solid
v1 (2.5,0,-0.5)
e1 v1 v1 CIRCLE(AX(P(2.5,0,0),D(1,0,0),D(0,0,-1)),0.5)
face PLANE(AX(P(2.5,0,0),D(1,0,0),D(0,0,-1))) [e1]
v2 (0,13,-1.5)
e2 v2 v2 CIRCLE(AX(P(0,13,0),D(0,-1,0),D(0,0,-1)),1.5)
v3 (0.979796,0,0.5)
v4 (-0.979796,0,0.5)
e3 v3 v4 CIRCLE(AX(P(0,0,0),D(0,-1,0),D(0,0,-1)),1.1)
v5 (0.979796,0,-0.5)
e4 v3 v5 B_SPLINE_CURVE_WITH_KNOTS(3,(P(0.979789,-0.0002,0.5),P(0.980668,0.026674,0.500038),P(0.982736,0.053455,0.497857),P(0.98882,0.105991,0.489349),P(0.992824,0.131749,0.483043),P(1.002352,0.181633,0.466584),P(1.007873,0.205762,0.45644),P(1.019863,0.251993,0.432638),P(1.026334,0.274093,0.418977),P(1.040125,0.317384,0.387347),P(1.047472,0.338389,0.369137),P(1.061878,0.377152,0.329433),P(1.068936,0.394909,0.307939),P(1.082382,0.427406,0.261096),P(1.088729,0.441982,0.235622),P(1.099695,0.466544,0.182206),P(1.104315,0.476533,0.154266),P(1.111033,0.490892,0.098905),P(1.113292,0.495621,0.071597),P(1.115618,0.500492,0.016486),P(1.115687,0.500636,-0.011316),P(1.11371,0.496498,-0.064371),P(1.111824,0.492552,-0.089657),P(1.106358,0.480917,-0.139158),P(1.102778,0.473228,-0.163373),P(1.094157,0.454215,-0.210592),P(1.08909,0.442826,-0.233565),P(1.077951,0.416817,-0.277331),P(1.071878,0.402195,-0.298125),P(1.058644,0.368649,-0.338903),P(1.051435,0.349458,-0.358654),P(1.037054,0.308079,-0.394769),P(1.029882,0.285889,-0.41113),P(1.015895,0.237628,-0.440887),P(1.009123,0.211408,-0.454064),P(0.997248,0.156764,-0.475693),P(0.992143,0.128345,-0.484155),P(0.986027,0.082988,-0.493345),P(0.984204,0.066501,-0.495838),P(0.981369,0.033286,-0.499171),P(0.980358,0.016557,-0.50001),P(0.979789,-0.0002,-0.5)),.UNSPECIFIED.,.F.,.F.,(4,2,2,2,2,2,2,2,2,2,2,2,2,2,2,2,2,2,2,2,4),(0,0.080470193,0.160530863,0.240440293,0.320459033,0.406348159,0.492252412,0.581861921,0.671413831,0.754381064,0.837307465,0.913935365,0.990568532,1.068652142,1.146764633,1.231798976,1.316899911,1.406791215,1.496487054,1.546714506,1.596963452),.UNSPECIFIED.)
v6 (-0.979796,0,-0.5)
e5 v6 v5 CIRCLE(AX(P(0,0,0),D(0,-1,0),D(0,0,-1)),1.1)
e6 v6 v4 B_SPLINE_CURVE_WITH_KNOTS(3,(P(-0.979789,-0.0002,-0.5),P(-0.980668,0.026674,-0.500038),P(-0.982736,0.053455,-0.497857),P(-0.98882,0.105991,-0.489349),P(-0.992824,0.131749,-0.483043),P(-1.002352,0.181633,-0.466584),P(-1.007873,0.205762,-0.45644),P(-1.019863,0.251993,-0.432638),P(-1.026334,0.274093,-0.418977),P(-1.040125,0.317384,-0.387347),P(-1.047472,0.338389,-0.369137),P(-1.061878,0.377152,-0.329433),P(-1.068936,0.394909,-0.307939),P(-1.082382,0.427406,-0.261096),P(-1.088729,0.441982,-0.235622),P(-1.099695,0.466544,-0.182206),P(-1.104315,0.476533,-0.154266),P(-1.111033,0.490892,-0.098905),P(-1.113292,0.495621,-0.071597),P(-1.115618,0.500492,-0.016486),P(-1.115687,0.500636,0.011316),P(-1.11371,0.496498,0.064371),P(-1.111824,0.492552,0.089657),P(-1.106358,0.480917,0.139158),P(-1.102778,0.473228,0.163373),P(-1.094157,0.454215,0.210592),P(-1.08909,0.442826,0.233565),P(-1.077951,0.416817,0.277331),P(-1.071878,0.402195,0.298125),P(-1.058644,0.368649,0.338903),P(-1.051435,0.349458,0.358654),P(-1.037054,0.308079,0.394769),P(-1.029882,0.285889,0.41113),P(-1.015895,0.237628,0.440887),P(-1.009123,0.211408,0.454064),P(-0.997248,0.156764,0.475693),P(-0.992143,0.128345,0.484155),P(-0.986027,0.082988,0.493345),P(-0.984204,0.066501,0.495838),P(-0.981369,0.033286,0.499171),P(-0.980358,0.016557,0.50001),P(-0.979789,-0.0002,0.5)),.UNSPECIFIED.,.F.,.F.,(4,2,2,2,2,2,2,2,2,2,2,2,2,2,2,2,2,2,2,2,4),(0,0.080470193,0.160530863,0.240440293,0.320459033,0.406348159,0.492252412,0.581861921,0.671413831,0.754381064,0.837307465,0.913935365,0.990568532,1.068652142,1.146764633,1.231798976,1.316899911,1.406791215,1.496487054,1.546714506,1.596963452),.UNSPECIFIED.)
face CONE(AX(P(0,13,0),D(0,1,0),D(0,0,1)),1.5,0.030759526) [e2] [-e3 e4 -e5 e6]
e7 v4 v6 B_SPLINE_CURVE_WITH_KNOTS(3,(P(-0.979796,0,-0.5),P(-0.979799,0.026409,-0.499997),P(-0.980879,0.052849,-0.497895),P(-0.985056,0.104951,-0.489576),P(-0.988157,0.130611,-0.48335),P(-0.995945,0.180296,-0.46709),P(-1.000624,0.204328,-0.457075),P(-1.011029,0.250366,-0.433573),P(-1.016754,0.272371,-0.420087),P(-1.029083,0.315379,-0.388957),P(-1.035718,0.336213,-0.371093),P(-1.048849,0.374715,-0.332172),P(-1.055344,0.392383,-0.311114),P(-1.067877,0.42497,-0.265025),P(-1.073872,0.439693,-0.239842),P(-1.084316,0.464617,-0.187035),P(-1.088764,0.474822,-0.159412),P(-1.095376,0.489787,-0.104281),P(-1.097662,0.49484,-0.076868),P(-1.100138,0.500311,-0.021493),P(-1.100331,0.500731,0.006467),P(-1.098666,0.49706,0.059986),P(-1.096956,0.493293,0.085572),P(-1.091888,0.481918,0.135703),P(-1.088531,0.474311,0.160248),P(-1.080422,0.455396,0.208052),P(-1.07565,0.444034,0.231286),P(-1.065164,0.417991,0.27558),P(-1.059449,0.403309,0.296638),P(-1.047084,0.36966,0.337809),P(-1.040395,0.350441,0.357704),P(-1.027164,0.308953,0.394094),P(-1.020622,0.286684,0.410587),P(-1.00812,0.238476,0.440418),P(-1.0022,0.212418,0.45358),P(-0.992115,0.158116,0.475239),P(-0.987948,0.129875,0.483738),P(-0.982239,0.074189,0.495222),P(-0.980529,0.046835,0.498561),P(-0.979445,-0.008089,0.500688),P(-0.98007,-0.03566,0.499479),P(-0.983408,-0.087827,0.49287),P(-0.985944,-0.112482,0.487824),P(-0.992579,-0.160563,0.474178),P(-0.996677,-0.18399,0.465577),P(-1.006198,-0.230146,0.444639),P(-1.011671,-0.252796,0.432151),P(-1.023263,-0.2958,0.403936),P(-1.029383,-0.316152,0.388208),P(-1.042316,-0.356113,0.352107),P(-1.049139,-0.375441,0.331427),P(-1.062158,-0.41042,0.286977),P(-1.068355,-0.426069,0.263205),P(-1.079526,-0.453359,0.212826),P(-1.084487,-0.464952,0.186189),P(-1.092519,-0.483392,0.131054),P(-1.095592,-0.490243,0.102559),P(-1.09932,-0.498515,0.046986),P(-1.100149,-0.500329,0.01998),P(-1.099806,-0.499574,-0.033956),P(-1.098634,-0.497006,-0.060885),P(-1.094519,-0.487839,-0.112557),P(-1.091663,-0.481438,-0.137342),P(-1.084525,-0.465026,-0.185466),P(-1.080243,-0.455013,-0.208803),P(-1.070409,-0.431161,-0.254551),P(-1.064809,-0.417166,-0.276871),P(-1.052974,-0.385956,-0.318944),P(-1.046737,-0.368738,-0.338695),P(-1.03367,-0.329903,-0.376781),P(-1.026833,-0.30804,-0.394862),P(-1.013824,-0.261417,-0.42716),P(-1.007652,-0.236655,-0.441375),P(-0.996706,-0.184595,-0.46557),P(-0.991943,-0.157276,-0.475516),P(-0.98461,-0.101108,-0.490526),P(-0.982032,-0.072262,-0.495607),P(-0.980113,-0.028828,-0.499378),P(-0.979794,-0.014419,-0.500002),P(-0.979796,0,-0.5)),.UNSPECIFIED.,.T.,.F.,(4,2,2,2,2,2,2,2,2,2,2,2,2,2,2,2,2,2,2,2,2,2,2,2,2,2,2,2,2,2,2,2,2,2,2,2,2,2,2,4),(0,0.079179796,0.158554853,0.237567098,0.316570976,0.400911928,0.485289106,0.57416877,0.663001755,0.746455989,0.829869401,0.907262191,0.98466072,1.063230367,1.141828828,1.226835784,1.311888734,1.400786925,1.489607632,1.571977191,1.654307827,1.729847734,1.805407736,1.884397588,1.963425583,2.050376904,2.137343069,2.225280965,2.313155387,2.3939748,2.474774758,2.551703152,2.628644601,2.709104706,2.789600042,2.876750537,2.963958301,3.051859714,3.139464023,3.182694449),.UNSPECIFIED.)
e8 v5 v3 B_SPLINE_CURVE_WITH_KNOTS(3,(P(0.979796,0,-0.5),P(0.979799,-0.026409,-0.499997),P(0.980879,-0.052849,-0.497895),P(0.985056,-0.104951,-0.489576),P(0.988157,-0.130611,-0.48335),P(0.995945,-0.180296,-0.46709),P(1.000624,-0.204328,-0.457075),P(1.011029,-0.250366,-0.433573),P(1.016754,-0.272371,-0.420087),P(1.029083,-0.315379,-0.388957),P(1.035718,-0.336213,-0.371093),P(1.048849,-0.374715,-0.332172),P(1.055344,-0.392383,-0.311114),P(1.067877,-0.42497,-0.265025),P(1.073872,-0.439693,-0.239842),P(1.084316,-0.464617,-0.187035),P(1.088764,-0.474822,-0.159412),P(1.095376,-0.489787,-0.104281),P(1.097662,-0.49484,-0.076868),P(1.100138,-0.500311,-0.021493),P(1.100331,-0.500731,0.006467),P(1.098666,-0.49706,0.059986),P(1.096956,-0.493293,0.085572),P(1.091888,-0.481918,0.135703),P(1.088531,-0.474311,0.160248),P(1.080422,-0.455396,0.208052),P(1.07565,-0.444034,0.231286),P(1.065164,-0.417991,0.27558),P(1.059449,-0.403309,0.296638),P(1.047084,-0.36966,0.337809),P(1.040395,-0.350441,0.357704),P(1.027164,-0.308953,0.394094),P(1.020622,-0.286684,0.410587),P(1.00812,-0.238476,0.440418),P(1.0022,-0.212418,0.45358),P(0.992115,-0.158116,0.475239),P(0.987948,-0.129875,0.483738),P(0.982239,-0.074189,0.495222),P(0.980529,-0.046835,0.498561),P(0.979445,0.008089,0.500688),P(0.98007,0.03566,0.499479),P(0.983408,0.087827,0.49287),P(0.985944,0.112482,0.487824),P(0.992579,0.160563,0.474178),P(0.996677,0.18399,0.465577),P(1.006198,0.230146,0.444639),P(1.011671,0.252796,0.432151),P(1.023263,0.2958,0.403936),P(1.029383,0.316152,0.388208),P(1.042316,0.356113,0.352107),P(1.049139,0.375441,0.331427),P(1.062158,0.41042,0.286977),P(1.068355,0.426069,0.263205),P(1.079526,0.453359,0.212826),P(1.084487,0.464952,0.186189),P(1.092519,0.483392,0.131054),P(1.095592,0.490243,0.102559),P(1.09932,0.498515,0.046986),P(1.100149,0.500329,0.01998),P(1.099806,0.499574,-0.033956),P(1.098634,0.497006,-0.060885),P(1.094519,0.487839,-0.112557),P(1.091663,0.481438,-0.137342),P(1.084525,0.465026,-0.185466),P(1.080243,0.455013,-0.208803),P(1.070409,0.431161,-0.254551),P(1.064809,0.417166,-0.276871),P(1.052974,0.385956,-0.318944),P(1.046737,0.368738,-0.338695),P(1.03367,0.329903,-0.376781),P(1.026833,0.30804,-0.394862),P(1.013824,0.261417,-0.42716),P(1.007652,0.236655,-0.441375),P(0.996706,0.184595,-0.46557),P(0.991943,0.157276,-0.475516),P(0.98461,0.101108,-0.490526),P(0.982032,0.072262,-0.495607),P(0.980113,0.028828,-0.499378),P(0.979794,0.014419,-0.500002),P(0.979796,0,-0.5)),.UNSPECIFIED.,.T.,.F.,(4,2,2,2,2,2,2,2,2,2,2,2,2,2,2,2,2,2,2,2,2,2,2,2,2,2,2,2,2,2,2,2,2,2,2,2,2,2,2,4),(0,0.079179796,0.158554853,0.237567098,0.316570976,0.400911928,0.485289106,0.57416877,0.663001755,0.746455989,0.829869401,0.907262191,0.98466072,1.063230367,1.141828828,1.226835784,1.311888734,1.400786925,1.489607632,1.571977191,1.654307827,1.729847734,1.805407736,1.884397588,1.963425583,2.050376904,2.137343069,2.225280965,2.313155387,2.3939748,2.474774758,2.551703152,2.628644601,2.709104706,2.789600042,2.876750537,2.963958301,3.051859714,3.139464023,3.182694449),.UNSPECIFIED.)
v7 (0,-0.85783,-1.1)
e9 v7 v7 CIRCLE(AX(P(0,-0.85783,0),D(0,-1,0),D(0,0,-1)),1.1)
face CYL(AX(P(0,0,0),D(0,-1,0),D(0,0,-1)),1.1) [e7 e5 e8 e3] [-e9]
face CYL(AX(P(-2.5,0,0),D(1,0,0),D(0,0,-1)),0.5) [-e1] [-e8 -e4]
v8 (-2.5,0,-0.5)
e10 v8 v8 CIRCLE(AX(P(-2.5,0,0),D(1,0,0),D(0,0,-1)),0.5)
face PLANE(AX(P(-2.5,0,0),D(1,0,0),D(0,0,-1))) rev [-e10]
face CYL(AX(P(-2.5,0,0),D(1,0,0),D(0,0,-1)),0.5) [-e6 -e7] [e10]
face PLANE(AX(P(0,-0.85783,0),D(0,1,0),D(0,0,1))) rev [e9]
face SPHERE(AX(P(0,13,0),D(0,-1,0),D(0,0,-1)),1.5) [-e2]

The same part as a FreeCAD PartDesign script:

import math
import FreeCAD as App
import Part
import Sketcher

V = App.Vector

doc = App.newDocument("Part")
body = doc.addObject("PartDesign::Body", "Body")

# Sketch on YZ plane
sketch1 = body.newObject("Sketcher::SketchObject", "Sketch")
sketch1.AttachmentSupport = (doc.getObject("YZ_Plane"), [""])
sketch1.MapMode = "FlatFace"
sketch1.addGeometry(Part.LineSegment(V(12.91, -1.5, 0), V(13, -1.5, 0)), False)
sketch1.addGeometry(Part.ArcOfCircle(Part.Circle(V(13, 0, 0), V(0, 0, 1), 1.5), math.radians(-90), math.radians(0)), False)
sketch1.addGeometry(Part.LineSegment(V(14.5, 0, 0), V(-0.86, 0, 0)), False)
sketch1.addGeometry(Part.LineSegment(V(-0.86, 0, 0), V(-0.86, -1.1, 0)), False)
sketch1.addGeometry(Part.LineSegment(V(-0.86, -1.1, 0), V(0, -1.1, 0)), False)
sketch1.addGeometry(Part.LineSegment(V(0, -1.1, 0), V(12.91, -1.5, 0)), False)
sketch1.addConstraint(Sketcher.Constraint("Coincident", 0, 2, 1, 1))
sketch1.addConstraint(Sketcher.Constraint("Coincident", 1, 2, 2, 1))
sketch1.addConstraint(Sketcher.Constraint("Coincident", 2, 2, 3, 1))
sketch1.addConstraint(Sketcher.Constraint("Coincident", 3, 2, 4, 1))
sketch1.addConstraint(Sketcher.Constraint("Coincident", 4, 2, 5, 1))
sketch1.addConstraint(Sketcher.Constraint("Coincident", 5, 2, 0, 1))
sketch1.addConstraint(Sketcher.Constraint("Horizontal", 2))
sketch1.addConstraint(Sketcher.Constraint("Vertical", 3))
sketch1.addConstraint(Sketcher.Constraint("Horizontal", 4))
sketch1.addConstraint(Sketcher.Constraint("PointOnObject", 1, 3, -1))
sketch1.addConstraint(Sketcher.Constraint("PointOnObject", 1, 2, -1))
sketch1.addConstraint(Sketcher.Constraint("PointOnObject", 4, 2, -2))
sketch1.addConstraint(Sketcher.Constraint("Parallel", 0, 5))
sketch1.addConstraint(Sketcher.Constraint("Vertical", 1, 3, 0, 2))
sketch1.addConstraint(Sketcher.Constraint("Radius", 1, 1.5))
sketch1.addConstraint(Sketcher.Constraint("DistanceY", 3, 2, 3, 1, 1.1))
sketch1.addConstraint(Sketcher.Constraint("DistanceX", -1, 1, 1, 3, 13.0))
sketch1.addConstraint(Sketcher.Constraint("DistanceX", 2, 2, 2, 1, 15.35783))
sketch1.addConstraint(Sketcher.Constraint("Distance", 5, 12.913888))
revolution = body.newObject("PartDesign::Revolution", "Revolution")
revolution.Profile = sketch1
revolution.ReferenceAxis = (sketch1, ["H_Axis"])
revolution.Angle = 360

# Sketch on YZ plane
sketch2 = body.newObject("Sketcher::SketchObject", "Sketch001")
sketch2.AttachmentSupport = (doc.getObject("YZ_Plane"), [""])
sketch2.MapMode = "FlatFace"
sketch2.addGeometry(Part.Circle(V(0, 0, 0), V(0, 0, 1), 0.5), False)
sketch2.addConstraint(Sketcher.Constraint("Coincident", 0, 3, -1, 1))
sketch2.addConstraint(Sketcher.Constraint("Diameter", 0, 1.0))
pad1 = body.newObject("PartDesign::Pad", "Pad")
pad1.Profile = sketch2
pad1.Type = "TwoLengths"
pad1.Length = 2.5
pad1.Length2 = 2.5

doc.recompute()
